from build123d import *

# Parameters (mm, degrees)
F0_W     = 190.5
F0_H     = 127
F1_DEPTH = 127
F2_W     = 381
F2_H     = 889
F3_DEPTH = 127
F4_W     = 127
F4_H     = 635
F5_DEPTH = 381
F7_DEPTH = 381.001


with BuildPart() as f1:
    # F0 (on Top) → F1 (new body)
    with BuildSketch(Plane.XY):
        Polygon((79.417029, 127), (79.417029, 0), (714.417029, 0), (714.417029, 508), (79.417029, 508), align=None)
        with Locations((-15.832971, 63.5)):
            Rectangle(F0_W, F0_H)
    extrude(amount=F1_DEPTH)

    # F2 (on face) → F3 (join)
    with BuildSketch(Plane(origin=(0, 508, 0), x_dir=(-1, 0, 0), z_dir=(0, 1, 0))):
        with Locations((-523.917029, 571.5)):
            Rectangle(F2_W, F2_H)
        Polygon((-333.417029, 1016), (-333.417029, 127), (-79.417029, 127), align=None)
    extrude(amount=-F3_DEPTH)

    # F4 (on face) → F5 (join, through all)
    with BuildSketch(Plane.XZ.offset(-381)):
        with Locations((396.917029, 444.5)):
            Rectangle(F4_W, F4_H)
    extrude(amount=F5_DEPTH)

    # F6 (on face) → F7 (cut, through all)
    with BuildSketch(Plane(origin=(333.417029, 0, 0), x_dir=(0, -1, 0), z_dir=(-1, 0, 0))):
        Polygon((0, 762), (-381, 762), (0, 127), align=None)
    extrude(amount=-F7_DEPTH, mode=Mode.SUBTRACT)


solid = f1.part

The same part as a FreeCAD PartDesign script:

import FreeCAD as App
import Part
import Sketcher

V = App.Vector
Q = App.Units.Quantity

doc = App.newDocument("Part")
body = doc.addObject("PartDesign::Body", "Body")

sketch1 = body.newObject("Sketcher::SketchObject", "Sketch")
sketch1.AttachmentSupport = (doc.getObject("XY_Plane"), [""])
sketch1.MapMode = "FlatFace"
sketch1.addGeometry([
    Part.LineSegment(V(714, 0, 0), V(714, 508, 0)),
    Part.LineSegment(V(714, 508, 0), V(79, 508, 0)),
    Part.LineSegment(V(79, 508, 0), V(79, 127, 0)),
    Part.LineSegment(V(79, 127, 0), V(-111, 127, 0)),
    Part.LineSegment(V(-111, 127, 0), V(-111, 0, 0)),
    Part.LineSegment(V(-111, 0, 0), V(714, 0, 0)),
], False)
sketch1.addConstraint([
    Sketcher.Constraint("Coincident", 0, 2, 1, 1),
    Sketcher.Constraint("Coincident", 1, 2, 2, 1),
    Sketcher.Constraint("Coincident", 2, 2, 3, 1),
    Sketcher.Constraint("Coincident", 3, 2, 4, 1),
    Sketcher.Constraint("Coincident", 4, 2, 5, 1),
    Sketcher.Constraint("Coincident", 5, 2, 0, 1),
    Sketcher.Constraint("Vertical", 0),
    Sketcher.Constraint("Horizontal", 1),
    Sketcher.Constraint("Vertical", 2),
    Sketcher.Constraint("Horizontal", 3),
    Sketcher.Constraint("Vertical", 4),
    Sketcher.Constraint("Horizontal", 5),
    Sketcher.Constraint("PointOnObject", 4, 2, -1),
    Sketcher.Constraint("DistanceX", 1, 2, 1, 1, Q("25 in")),
    Sketcher.Constraint("DistanceY", 0, 1, 0, 2, Q("20 in")),
    Sketcher.Constraint("DistanceY", 2, 2, 2, 1, Q("15 in")),
    Sketcher.Constraint("DistanceX", 3, 2, 3, 1, Q("7.5 in")),
    Sketcher.Constraint("DistanceX", -1, 1, 0, 2, Q("714.417029 mm")),
])
pad1 = body.newObject("PartDesign::Pad", "Pad")
pad1.Profile = sketch1
pad1.Length = Q("5 in")

sketch2 = body.newObject("Sketcher::SketchObject", "Sketch001")
sketch2.AttachmentSupport = (doc.getObject("XZ_Plane"), [""])
sketch2.MapMode = "FlatFace"
sketch2.AttachmentOffset = App.Placement(V(0, 0, -20 * 25.4), App.Rotation())
sketch2.addGeometry([
    Part.LineSegment(V(714, 1016, 0), V(714, 127, 0)),
    Part.LineSegment(V(714, 127, 0), V(79, 127, 0)),
    Part.LineSegment(V(79, 127, 0), V(333, 1016, 0)),
    Part.LineSegment(V(333, 1016, 0), V(714, 1016, 0)),
], False)
sketch2.addConstraint([
    Sketcher.Constraint("Coincident", 0, 2, 1, 1),
    Sketcher.Constraint("Coincident", 1, 2, 2, 1),
    Sketcher.Constraint("Coincident", 2, 2, 3, 1),
    Sketcher.Constraint("Coincident", 3, 2, 0, 1),
    Sketcher.Constraint("Vertical", 0),
    Sketcher.Constraint("Horizontal", 1),
    Sketcher.Constraint("Horizontal", 3),
    Sketcher.Constraint("DistanceX", 1, 2, 1, 1, Q("25 in")),
    Sketcher.Constraint("DistanceX", 3, 1, 3, 2, Q("15 in")),
    Sketcher.Constraint("DistanceY", 0, 2, 0, 1, Q("35 in")),
    Sketcher.Constraint("DistanceY", -1, 1, 0, 2, Q("5 in")),
    Sketcher.Constraint("DistanceX", -1, 1, 0, 2, Q("714.417029 mm")),
])
pad2 = body.newObject("PartDesign::Pad", "Pad001")
pad2.Profile = sketch2
pad2.Length = Q("5 in")

sketch3 = body.newObject("Sketcher::SketchObject", "Sketch002")
sketch3.AttachmentSupport = (doc.getObject("XZ_Plane"), [""])
sketch3.MapMode = "FlatFace"
sketch3.AttachmentOffset = App.Placement(V(0, 0, -15 * 25.4), App.Rotation())
sketch3.addGeometry([
    Part.LineSegment(V(333, 762, 0), V(333, 127, 0)),
    Part.LineSegment(V(333, 127, 0), V(460, 127, 0)),
    Part.LineSegment(V(460, 127, 0), V(460, 762, 0)),
    Part.LineSegment(V(460, 762, 0), V(333, 762, 0)),
], False)
sketch3.addConstraint([
    Sketcher.Constraint("Coincident", 0, 2, 1, 1),
    Sketcher.Constraint("Coincident", 1, 2, 2, 1),
    Sketcher.Constraint("Coincident", 2, 2, 3, 1),
    Sketcher.Constraint("Coincident", 3, 2, 0, 1),
    Sketcher.Constraint("Vertical", 0),
    Sketcher.Constraint("Horizontal", 1),
    Sketcher.Constraint("Vertical", 2),
    Sketcher.Constraint("Horizontal", 3),
    Sketcher.Constraint("DistanceX", 1, 1, 1, 2, Q("5 in")),
    Sketcher.Constraint("DistanceY", 0, 2, 0, 1, Q("25 in")),
    Sketcher.Constraint("DistanceY", -1, 1, 0, 2, Q("5 in")),
    Sketcher.Constraint("DistanceX", -1, 1, 0, 2, Q("333.417029 mm")),
])
pad3 = body.newObject("PartDesign::Pad", "Pad002")
pad3.Profile = sketch3
pad3.Length = Q("15 in")

sketch4 = body.newObject("Sketcher::SketchObject", "Sketch003")
sketch4.AttachmentSupport = (doc.getObject("YZ_Plane"), [""])
sketch4.MapMode = "FlatFace"
sketch4.AttachmentOffset = App.Placement(V(0, 0, 333.417029), App.Rotation())
sketch4.addGeometry([
    Part.LineSegment(V(0, 762, 0), V(381, 762, 0)),
    Part.LineSegment(V(381, 762, 0), V(0, 127, 0)),
    Part.LineSegment(V(0, 127, 0), V(0, 762, 0)),
], False)
sketch4.addConstraint([
    Sketcher.Constraint("Coincident", 0, 2, 1, 1),
    Sketcher.Constraint("Coincident", 1, 2, 2, 1),
    Sketcher.Constraint("Coincident", 2, 2, 0, 1),
    Sketcher.Constraint("Horizontal", 0),
    Sketcher.Constraint("Vertical", 2),
    Sketcher.Constraint("PointOnObject", 1, 2, -2),
    Sketcher.Constraint("DistanceX", 0, 1, 0, 2, Q("15 in")),
    Sketcher.Constraint("DistanceY", 2, 1, 2, 2, Q("25 in")),
    Sketcher.Constraint("DistanceY", -1, 1, 0, 2, Q("30 in")),
])
pocket1 = body.newObject("PartDesign::Pocket", "Pocket")
pocket1.Profile = sketch4
pocket1.Type = "ThroughAll"
pocket1.Reversed = True

doc.recompute()
